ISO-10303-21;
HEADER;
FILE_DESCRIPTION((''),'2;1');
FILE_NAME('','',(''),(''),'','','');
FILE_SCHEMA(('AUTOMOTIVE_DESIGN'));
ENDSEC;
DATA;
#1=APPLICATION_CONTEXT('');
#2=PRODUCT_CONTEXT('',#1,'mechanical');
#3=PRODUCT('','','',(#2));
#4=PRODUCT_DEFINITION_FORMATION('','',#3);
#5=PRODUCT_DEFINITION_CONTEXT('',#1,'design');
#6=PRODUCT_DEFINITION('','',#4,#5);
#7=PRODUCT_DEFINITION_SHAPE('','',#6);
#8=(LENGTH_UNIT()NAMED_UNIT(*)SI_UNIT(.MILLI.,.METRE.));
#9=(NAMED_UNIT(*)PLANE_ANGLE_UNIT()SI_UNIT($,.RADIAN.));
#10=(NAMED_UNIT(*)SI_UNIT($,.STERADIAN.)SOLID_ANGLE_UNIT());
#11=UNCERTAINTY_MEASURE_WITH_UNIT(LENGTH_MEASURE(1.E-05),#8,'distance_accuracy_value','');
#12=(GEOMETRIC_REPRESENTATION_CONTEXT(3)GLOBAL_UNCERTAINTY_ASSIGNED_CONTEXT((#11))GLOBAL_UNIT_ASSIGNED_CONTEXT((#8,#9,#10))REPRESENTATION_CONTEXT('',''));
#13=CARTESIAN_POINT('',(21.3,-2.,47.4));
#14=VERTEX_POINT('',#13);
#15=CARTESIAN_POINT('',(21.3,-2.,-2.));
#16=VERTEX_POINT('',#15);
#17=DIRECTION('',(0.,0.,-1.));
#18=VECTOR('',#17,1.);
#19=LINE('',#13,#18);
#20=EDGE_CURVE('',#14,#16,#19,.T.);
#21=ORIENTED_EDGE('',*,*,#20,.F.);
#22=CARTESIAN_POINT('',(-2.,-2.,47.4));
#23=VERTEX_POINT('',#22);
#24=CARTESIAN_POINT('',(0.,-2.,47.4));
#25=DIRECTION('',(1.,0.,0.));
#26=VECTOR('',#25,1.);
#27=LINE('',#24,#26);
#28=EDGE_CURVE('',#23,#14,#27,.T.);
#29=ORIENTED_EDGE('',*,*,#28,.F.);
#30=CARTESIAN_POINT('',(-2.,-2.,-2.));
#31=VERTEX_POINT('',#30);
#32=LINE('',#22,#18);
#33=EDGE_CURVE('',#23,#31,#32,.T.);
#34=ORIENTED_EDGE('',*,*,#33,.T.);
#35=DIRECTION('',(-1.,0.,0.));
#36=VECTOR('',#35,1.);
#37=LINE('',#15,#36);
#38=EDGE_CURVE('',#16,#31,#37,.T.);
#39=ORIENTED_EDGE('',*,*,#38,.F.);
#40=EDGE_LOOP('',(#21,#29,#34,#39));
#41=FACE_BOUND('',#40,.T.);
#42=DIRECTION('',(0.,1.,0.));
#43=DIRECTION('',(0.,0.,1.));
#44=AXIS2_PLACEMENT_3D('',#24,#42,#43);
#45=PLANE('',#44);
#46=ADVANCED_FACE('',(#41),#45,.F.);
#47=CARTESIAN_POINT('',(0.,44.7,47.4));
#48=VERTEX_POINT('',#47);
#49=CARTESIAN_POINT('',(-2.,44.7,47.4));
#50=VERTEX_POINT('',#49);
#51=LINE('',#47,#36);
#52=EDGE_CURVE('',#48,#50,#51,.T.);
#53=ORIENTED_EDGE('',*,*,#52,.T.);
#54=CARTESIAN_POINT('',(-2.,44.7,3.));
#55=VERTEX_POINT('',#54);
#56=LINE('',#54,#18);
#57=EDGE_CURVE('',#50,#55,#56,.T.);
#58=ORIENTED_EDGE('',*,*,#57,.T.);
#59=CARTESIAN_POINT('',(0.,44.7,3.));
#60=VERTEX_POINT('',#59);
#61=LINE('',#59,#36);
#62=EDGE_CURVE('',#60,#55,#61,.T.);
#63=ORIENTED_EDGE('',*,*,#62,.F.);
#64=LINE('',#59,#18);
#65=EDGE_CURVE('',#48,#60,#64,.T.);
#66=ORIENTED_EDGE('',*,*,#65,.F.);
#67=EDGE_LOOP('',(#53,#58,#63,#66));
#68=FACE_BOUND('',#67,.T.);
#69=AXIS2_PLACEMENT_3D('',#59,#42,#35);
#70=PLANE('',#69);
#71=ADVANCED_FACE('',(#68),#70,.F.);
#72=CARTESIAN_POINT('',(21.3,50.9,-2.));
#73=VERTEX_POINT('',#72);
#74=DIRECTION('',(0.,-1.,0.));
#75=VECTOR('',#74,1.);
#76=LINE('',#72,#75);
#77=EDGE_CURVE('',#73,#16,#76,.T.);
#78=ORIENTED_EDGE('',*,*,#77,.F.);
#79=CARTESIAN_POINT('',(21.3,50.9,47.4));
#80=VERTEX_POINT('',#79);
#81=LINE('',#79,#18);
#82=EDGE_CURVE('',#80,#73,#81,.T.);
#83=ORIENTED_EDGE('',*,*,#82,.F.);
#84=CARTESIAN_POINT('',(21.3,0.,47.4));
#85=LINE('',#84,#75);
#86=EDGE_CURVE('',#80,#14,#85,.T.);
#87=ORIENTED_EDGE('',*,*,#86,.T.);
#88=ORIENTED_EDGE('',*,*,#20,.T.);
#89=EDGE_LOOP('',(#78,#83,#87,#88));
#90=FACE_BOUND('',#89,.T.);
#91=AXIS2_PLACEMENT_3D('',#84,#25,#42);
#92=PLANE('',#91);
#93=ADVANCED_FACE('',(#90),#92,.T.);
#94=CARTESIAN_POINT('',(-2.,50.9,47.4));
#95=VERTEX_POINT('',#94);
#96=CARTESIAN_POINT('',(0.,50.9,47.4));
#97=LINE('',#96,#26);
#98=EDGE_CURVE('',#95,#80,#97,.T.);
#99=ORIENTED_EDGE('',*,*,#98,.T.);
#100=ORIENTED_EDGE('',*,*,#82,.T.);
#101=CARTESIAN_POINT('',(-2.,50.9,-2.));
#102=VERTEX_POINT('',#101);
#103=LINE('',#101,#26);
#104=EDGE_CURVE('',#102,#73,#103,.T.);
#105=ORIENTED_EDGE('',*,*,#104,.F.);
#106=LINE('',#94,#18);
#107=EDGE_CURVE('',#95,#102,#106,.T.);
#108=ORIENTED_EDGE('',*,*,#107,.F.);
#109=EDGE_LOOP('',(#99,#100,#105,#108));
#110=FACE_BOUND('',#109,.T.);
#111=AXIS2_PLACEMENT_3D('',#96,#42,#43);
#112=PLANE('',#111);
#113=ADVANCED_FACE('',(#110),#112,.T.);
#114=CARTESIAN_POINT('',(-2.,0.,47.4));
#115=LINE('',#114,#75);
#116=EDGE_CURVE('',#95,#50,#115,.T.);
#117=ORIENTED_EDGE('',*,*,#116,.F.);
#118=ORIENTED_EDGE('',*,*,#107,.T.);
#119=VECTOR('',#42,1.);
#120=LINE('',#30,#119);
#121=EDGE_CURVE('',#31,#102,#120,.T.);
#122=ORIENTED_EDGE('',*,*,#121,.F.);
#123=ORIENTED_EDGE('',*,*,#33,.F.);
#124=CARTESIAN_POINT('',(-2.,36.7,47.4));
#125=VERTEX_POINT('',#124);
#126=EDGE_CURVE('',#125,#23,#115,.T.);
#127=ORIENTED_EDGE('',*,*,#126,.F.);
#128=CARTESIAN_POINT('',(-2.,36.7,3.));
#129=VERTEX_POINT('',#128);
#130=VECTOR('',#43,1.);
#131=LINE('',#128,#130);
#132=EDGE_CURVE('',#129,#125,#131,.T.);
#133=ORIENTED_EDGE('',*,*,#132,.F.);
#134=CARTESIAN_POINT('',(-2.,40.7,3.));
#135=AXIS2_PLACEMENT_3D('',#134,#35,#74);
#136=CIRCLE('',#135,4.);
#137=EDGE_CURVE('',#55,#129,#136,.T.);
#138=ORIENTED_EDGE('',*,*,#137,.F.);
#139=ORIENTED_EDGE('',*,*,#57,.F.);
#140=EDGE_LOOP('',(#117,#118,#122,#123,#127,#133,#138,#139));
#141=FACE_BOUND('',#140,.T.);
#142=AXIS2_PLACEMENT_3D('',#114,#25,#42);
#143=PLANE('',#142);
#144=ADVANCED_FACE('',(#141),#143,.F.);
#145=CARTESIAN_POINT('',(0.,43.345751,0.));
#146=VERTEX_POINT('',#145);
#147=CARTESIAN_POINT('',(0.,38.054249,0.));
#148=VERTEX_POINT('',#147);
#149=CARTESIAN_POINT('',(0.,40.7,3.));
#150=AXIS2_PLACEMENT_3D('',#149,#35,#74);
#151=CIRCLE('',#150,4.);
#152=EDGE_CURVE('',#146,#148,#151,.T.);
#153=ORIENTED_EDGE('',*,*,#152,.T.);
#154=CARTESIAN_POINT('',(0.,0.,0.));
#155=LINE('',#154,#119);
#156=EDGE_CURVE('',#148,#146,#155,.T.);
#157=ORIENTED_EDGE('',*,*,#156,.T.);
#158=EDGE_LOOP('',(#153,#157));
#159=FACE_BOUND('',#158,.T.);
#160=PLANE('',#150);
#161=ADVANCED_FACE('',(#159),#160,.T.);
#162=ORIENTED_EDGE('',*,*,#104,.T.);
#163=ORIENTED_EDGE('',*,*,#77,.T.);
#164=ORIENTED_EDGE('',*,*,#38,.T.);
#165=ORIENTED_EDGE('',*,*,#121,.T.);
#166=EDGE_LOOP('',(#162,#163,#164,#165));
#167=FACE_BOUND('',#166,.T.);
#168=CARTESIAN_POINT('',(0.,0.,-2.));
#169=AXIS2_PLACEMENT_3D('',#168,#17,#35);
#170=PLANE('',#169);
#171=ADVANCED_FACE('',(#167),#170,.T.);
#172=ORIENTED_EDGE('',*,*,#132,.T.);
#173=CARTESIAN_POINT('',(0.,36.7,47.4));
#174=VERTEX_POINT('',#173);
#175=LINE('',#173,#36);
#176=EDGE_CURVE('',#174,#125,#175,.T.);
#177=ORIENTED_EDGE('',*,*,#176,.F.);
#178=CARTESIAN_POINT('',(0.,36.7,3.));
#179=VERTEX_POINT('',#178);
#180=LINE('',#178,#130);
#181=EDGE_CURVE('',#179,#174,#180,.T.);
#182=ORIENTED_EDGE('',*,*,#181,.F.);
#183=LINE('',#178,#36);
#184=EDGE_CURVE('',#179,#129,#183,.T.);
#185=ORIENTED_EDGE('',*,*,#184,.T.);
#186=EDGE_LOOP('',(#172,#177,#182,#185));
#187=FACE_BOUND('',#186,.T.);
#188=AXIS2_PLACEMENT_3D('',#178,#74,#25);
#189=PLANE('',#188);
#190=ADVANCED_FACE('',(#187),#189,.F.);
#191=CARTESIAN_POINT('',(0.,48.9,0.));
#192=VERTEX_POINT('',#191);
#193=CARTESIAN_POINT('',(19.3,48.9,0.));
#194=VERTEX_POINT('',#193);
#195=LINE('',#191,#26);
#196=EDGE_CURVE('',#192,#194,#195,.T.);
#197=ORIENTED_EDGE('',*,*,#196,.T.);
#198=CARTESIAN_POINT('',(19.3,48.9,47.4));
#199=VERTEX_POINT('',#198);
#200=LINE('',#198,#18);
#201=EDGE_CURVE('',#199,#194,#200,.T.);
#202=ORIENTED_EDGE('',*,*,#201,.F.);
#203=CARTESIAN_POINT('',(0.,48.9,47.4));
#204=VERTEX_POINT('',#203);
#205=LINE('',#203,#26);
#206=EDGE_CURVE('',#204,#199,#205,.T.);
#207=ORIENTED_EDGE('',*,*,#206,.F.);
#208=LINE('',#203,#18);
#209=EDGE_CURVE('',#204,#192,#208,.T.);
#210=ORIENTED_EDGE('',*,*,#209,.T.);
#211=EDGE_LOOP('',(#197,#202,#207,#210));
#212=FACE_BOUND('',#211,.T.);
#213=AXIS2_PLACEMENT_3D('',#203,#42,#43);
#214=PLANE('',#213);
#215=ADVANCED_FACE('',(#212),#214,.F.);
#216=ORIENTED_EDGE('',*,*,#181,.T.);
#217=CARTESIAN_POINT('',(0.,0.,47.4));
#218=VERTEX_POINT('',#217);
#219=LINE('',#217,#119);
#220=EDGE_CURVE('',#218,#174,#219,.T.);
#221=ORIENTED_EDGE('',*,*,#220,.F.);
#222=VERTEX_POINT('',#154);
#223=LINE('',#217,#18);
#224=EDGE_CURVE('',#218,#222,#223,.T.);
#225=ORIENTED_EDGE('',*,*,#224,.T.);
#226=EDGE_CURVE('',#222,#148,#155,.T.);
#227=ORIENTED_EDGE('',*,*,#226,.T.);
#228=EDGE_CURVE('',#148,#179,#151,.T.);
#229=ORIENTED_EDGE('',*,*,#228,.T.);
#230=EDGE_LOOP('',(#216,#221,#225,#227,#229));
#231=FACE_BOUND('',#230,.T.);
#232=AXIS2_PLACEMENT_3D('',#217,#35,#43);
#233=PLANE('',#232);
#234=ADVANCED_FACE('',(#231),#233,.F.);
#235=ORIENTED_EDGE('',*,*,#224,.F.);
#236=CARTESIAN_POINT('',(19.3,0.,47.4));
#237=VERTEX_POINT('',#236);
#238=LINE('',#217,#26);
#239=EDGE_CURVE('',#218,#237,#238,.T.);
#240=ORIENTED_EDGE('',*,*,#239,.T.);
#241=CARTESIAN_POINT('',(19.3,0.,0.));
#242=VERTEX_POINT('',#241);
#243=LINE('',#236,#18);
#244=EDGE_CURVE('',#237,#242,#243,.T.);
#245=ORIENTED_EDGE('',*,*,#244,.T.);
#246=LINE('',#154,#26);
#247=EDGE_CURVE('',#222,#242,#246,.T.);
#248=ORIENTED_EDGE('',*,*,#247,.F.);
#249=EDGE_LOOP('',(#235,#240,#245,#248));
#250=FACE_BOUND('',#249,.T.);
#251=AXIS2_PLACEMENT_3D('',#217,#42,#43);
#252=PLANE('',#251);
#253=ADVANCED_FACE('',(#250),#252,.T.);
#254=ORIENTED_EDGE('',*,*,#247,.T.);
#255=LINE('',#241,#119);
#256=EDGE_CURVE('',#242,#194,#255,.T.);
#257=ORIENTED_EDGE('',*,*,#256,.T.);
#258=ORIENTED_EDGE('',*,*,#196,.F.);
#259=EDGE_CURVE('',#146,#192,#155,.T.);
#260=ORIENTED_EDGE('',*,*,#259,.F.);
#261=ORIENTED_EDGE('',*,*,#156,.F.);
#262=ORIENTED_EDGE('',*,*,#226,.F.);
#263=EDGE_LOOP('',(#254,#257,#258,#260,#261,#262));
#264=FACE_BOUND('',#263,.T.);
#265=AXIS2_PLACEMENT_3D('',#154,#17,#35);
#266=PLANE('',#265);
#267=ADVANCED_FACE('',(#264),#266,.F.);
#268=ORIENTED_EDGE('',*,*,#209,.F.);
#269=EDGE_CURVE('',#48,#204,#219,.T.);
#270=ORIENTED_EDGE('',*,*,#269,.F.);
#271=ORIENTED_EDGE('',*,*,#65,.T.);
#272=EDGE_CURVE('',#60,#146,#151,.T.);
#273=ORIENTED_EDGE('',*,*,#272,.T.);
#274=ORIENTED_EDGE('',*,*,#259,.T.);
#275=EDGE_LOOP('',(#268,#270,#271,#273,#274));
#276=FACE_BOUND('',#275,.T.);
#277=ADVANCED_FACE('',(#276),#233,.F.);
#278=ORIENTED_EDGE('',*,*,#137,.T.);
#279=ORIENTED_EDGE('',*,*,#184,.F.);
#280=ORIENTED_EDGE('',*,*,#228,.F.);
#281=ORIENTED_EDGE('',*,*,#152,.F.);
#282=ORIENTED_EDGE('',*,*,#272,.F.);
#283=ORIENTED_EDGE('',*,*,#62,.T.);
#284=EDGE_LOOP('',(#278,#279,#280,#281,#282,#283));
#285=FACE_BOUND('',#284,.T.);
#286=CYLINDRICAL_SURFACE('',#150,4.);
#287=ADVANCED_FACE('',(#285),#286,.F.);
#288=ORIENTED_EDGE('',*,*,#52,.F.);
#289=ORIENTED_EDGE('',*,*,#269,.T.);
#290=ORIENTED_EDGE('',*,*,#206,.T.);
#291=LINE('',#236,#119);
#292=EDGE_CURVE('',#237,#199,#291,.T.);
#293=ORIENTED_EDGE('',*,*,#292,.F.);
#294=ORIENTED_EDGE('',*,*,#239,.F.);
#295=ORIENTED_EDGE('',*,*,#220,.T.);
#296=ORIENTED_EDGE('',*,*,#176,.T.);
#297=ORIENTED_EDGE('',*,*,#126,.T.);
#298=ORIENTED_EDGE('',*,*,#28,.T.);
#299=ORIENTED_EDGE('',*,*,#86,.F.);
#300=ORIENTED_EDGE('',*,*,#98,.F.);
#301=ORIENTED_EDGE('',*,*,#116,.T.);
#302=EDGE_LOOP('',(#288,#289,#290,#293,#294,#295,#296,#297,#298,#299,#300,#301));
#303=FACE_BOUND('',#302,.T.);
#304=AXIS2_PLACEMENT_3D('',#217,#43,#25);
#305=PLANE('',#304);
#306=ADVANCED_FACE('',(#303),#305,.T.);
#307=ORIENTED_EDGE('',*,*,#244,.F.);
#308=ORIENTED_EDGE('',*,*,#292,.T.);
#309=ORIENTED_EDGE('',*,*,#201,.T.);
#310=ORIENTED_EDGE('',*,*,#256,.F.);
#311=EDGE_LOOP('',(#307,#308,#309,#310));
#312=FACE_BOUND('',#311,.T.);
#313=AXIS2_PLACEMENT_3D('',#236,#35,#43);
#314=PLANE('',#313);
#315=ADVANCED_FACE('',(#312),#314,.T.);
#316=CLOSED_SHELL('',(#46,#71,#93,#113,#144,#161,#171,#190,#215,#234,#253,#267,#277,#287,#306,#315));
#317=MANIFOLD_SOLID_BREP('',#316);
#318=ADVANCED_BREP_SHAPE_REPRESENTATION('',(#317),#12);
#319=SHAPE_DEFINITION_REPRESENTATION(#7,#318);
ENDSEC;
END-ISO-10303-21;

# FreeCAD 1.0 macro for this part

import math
import FreeCAD as App
import Part
import Sketcher

doc = App.newDocument("Part")
params = doc.addObject("Spreadsheet::Sheet", "Params")
for row, (alias, value) in enumerate([
    ("sketch1_width", "23.3 mm"),
    ("sketch1_width2", "19.3 mm"),
    ("sketch1_height", "52.9 mm"),
    ("sketch1_height2", "48.9 mm"),
    ("pad1_length", "47.4 mm"),
    ("sketch2_width", "23.3 mm"),
    ("sketch2_height", "52.9 mm"),
    ("pad2_length", "2 mm"),
    ("sketch3_radius", "4 mm"),
    ("sketch3_height", "44.4 mm"),
    ("pocket1_length", "2 mm"),
], start=1):
    params.set(f"A{row}", alias)
    params.set(f"B{row}", "=" + value)
    params.setAlias(f"B{row}", alias)

body = doc.addObject("PartDesign::Body", "Body")

sketch1 = doc.addObject("Sketcher::SketchObject", "Sketch")
body.addObject(sketch1)
sketch1.AttachmentSupport = (doc.XY_Plane, [""])
sketch1.MapMode = "FlatFace"
sketch1.addGeometry(Part.LineSegment(App.Vector(-2, 51, 0), App.Vector(-2, -2, 0)), False)
sketch1.addGeometry(Part.LineSegment(App.Vector(-2, -2, 0), App.Vector(21, -2, 0)), False)
sketch1.addGeometry(Part.LineSegment(App.Vector(21, -2, 0), App.Vector(21, 51, 0)), False)
sketch1.addGeometry(Part.LineSegment(App.Vector(21, 51, 0), App.Vector(-2, 51, 0)), False)
sketch1.addGeometry(Part.LineSegment(App.Vector(19, 0, 0), App.Vector(0, 0, 0)), False)
sketch1.addGeometry(Part.LineSegment(App.Vector(0, 0, 0), App.Vector(0, 49, 0)), False)
sketch1.addGeometry(Part.LineSegment(App.Vector(0, 49, 0), App.Vector(19, 49, 0)), False)
sketch1.addGeometry(Part.LineSegment(App.Vector(19, 49, 0), App.Vector(19, 0, 0)), False)
sketch1.addConstraint(Sketcher.Constraint("Coincident", 0, 2, 1, 1))
sketch1.addConstraint(Sketcher.Constraint("Coincident", 1, 2, 2, 1))
sketch1.addConstraint(Sketcher.Constraint("Coincident", 2, 2, 3, 1))
sketch1.addConstraint(Sketcher.Constraint("Coincident", 3, 2, 0, 1))
sketch1.addConstraint(Sketcher.Constraint("Coincident", 4, 2, 5, 1))
sketch1.addConstraint(Sketcher.Constraint("Coincident", 5, 2, 6, 1))
sketch1.addConstraint(Sketcher.Constraint("Coincident", 6, 2, 7, 1))
sketch1.addConstraint(Sketcher.Constraint("Coincident", 7, 2, 4, 1))
sketch1.addConstraint(Sketcher.Constraint("Vertical", 0))
sketch1.addConstraint(Sketcher.Constraint("Horizontal", 1))
sketch1.addConstraint(Sketcher.Constraint("Vertical", 2))
sketch1.addConstraint(Sketcher.Constraint("Horizontal", 3))
sketch1.addConstraint(Sketcher.Constraint("Horizontal", 4))
sketch1.addConstraint(Sketcher.Constraint("Vertical", 5))
sketch1.addConstraint(Sketcher.Constraint("Horizontal", 6))
sketch1.addConstraint(Sketcher.Constraint("Vertical", 7))
sketch1.addConstraint(Sketcher.Constraint("Coincident", 4, 2, -1, 1))
sketch1.addConstraint(Sketcher.Constraint("DistanceX", 1, 1, 1, 2, 23.3))
sketch1.addConstraint(Sketcher.Constraint("DistanceX", 4, 2, 4, 1, 19.3))
sketch1.addConstraint(Sketcher.Constraint("DistanceY", 0, 2, 0, 1, 52.9))
sketch1.addConstraint(Sketcher.Constraint("DistanceY", 5, 1, 5, 2, 48.9))
sketch1.addConstraint(Sketcher.Constraint("DistanceX", 0, 2, -1, 1, 2.0))
sketch1.addConstraint(Sketcher.Constraint("DistanceY", 0, 2, -1, 1, 2.0))
sketch1.setExpression("Constraints[17]", "Params.sketch1_width")
sketch1.setExpression("Constraints[18]", "Params.sketch1_width2")
sketch1.setExpression("Constraints[19]", "Params.sketch1_height")
sketch1.setExpression("Constraints[20]", "Params.sketch1_height2")
pad1 = doc.addObject("PartDesign::Pad", "Pad")
body.addObject(pad1)
pad1.Profile = sketch1
pad1.setExpression("Length", "Params.pad1_length")

sketch2 = doc.addObject("Sketcher::SketchObject", "Sketch001")
body.addObject(sketch2)
sketch2.AttachmentSupport = (doc.XY_Plane, [""])
sketch2.MapMode = "FlatFace"
sketch2.addGeometry(Part.LineSegment(App.Vector(21, 51, 0), App.Vector(21, -2, 0)), False)
sketch2.addGeometry(Part.LineSegment(App.Vector(21, -2, 0), App.Vector(-2, -2, 0)), False)
sketch2.addGeometry(Part.LineSegment(App.Vector(-2, -2, 0), App.Vector(-2, 51, 0)), False)
sketch2.addGeometry(Part.LineSegment(App.Vector(-2, 51, 0), App.Vector(21, 51, 0)), False)
sketch2.addConstraint(Sketcher.Constraint("Coincident", 0, 2, 1, 1))
sketch2.addConstraint(Sketcher.Constraint("Coincident", 1, 2, 2, 1))
sketch2.addConstraint(Sketcher.Constraint("Coincident", 2, 2, 3, 1))
sketch2.addConstraint(Sketcher.Constraint("Coincident", 3, 2, 0, 1))
sketch2.addConstraint(Sketcher.Constraint("Vertical", 0))
sketch2.addConstraint(Sketcher.Constraint("Horizontal", 1))
sketch2.addConstraint(Sketcher.Constraint("Vertical", 2))
sketch2.addConstraint(Sketcher.Constraint("Horizontal", 3))
sketch2.addConstraint(Sketcher.Constraint("DistanceX", 1, 2, 1, 1, 23.3))
sketch2.addConstraint(Sketcher.Constraint("DistanceY", 0, 2, 0, 1, 52.9))
sketch2.addConstraint(Sketcher.Constraint("DistanceY", 0, 2, -1, 1, 2.0))
sketch2.addConstraint(Sketcher.Constraint("DistanceX", 1, 2, -1, 1, 2.0))
sketch2.setExpression("Constraints[8]", "Params.sketch2_width")
sketch2.setExpression("Constraints[9]", "Params.sketch2_height")
pad2 = doc.addObject("PartDesign::Pad", "Pad001")
body.addObject(pad2)
pad2.Profile = sketch2
pad2.setExpression("Length", "Params.pad2_length")
pad2.Reversed = True

sketch3 = doc.addObject("Sketcher::SketchObject", "Sketch002")
body.addObject(sketch3)
sketch3.AttachmentSupport = (doc.YZ_Plane, [""])
sketch3.MapMode = "FlatFace"
sketch3.AttachmentOffset = App.Placement(App.Vector(0, 0, -2), App.Rotation())
sketch3.addGeometry(Part.LineSegment(App.Vector(44.7, 47.4, 0), App.Vector(44.7, 3, 0)), False)
sketch3.addGeometry(Part.ArcOfCircle(Part.Circle(App.Vector(40.7, 3, 0), App.Vector(0, 0, 1), 4), math.radians(180), math.radians(360)), False)
sketch3.addGeometry(Part.LineSegment(App.Vector(36.7, 3, 0), App.Vector(36.7, 47.4, 0)), False)
sketch3.addGeometry(Part.ArcOfCircle(Part.Circle(App.Vector(40.7, 47.4, 0), App.Vector(0, 0, 1), 4), math.radians(0), math.radians(180)), False)
sketch3.addConstraint(Sketcher.Constraint("Tangent", 0, 2, 1, 2))
sketch3.addConstraint(Sketcher.Constraint("Tangent", 1, 1, 2, 1))
sketch3.addConstraint(Sketcher.Constraint("Tangent", 2, 2, 3, 2))
sketch3.addConstraint(Sketcher.Constraint("Tangent", 3, 1, 0, 1))
sketch3.addConstraint(Sketcher.Constraint("Vertical", 0))
sketch3.addConstraint(Sketcher.Constraint("Vertical", 2))
sketch3.addConstraint(Sketcher.Constraint("Radius", 1, 4.0))
sketch3.addConstraint(Sketcher.Constraint("DistanceY", 0, 2, 0, 1, 44.4))
sketch3.addConstraint(Sketcher.Constraint("DistanceY", -1, 1, 1, 3, 3.0))
sketch3.addConstraint(Sketcher.Constraint("DistanceX", -1, 1, 1, 3, 40.7))
sketch3.setExpression("Constraints[6]", "Params.sketch3_radius")
sketch3.setExpression("Constraints[7]", "Params.sketch3_height")
pocket1 = doc.addObject("PartDesign::Pocket", "Pocket")
body.addObject(pocket1)
pocket1.Profile = sketch3
pocket1.setExpression("Length", "Params.pocket1_length")
pocket1.Reversed = True

doc.recompute()
